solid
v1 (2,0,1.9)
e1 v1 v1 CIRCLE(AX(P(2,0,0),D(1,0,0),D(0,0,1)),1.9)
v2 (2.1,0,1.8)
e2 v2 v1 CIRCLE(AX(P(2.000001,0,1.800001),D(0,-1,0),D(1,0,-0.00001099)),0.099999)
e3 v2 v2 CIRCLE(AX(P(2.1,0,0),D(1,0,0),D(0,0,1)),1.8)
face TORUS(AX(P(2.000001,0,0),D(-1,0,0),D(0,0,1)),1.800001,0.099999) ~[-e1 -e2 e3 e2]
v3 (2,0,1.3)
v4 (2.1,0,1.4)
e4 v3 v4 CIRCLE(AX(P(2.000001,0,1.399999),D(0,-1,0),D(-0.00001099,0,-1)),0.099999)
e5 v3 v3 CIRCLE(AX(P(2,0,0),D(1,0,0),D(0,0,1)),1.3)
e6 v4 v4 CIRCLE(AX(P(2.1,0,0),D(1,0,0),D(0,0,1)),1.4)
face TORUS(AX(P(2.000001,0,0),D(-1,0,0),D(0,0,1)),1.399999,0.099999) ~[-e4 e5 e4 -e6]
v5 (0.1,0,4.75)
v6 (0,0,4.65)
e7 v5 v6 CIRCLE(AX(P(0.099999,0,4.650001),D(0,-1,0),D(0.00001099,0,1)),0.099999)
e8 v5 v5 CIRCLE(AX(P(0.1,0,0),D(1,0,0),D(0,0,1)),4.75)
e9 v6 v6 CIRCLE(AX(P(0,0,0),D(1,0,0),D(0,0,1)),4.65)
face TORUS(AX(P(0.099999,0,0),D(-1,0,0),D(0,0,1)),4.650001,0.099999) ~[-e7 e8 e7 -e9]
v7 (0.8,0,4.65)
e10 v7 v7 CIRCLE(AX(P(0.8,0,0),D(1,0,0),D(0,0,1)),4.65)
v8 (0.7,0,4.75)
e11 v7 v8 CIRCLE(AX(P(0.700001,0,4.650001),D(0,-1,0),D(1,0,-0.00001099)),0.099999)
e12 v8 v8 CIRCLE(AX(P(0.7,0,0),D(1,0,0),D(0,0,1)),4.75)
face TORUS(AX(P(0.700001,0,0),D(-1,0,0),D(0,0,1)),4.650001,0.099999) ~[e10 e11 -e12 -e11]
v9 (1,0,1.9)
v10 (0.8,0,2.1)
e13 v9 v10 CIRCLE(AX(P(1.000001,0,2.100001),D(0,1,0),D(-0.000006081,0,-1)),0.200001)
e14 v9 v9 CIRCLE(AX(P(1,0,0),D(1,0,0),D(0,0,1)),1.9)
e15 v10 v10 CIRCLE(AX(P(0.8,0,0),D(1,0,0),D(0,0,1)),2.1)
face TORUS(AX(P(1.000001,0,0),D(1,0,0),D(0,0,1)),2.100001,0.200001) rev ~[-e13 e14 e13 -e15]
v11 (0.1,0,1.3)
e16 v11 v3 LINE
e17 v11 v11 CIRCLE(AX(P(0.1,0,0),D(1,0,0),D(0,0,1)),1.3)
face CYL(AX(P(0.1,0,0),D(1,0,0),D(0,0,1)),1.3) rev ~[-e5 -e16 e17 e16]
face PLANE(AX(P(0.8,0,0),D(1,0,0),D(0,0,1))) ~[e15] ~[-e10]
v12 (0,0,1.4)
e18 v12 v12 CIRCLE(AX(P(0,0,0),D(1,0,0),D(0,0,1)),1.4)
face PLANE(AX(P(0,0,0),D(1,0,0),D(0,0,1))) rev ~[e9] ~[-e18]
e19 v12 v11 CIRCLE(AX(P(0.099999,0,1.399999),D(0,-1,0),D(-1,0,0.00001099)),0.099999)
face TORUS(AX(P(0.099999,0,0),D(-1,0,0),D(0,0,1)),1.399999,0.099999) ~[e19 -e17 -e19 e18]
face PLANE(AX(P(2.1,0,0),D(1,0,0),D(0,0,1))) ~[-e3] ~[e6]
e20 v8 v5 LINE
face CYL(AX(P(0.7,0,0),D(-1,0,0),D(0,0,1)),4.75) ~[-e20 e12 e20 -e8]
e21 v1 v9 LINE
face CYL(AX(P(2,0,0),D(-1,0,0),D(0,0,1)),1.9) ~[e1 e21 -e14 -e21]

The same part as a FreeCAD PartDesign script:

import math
import FreeCAD as App
import Part
import Sketcher
from FreeCAD import Vector
Q = App.Units.Quantity

doc = App.newDocument("Part")
body = doc.addObject("PartDesign::Body", "Body")

sketch1 = body.newObject("Sketcher::SketchObject", "Sketch")
sketch1.AttachmentSupport = (doc.getObject("XZ_Plane"), [""])
sketch1.MapMode = "FlatFace"
sketch1.addGeometry(Part.LineSegment(Vector(0.7, 4.75, 0), Vector(0.1, 4.75, 0)), False)
sketch1.addGeometry(Part.ArcOfCircle(Part.Circle(Vector(0.1, 4.65, 0), Vector(0, 0, 1), 0.1), math.radians(90), math.radians(180)), False)
sketch1.addGeometry(Part.LineSegment(Vector(0, 4.65, 0), Vector(0, 1.4, 0)), False)
sketch1.addGeometry(Part.ArcOfCircle(Part.Circle(Vector(0.1, 1.4, 0), Vector(0, 0, 1), 0.1), math.radians(180), math.radians(270)), False)
sketch1.addGeometry(Part.LineSegment(Vector(0.1, 1.3, 0), Vector(2, 1.3, 0)), False)
sketch1.addGeometry(Part.ArcOfCircle(Part.Circle(Vector(2, 1.4, 0), Vector(0, 0, 1), 0.1), math.radians(-90), math.radians(0)), False)
sketch1.addGeometry(Part.LineSegment(Vector(2.1, 1.4, 0), Vector(2.1, 1.8, 0)), False)
sketch1.addGeometry(Part.ArcOfCircle(Part.Circle(Vector(2, 1.8, 0), Vector(0, 0, 1), 0.1), math.radians(0), math.radians(90)), False)
sketch1.addGeometry(Part.LineSegment(Vector(2, 1.9, 0), Vector(1, 1.9, 0)), False)
sketch1.addGeometry(Part.ArcOfCircle(Part.Circle(Vector(1, 2.1, 0), Vector(0, 0, 1), 0.2), math.radians(-180), math.radians(-90)), False)
sketch1.addGeometry(Part.LineSegment(Vector(0.8, 2.1, 0), Vector(0.8, 4.65, 0)), False)
sketch1.addGeometry(Part.ArcOfCircle(Part.Circle(Vector(0.7, 4.65, 0), Vector(0, 0, 1), 0.1), math.radians(0), math.radians(90)), False)
sketch1.addConstraint(Sketcher.Constraint("Coincident", 0, 2, 1, 1))
sketch1.addConstraint(Sketcher.Constraint("Coincident", 1, 2, 2, 1))
sketch1.addConstraint(Sketcher.Constraint("Coincident", 2, 2, 3, 1))
sketch1.addConstraint(Sketcher.Constraint("Coincident", 3, 2, 4, 1))
sketch1.addConstraint(Sketcher.Constraint("Coincident", 4, 2, 5, 1))
sketch1.addConstraint(Sketcher.Constraint("Coincident", 5, 2, 6, 1))
sketch1.addConstraint(Sketcher.Constraint("Coincident", 6, 2, 7, 1))
sketch1.addConstraint(Sketcher.Constraint("Coincident", 7, 2, 8, 1))
sketch1.addConstraint(Sketcher.Constraint("Coincident", 8, 2, 9, 2))
sketch1.addConstraint(Sketcher.Constraint("Coincident", 9, 1, 10, 1))
sketch1.addConstraint(Sketcher.Constraint("Coincident", 10, 2, 11, 1))
sketch1.addConstraint(Sketcher.Constraint("Coincident", 11, 2, 0, 1))
sketch1.addConstraint(Sketcher.Constraint("Horizontal", 0))
sketch1.addConstraint(Sketcher.Constraint("Vertical", 2))
sketch1.addConstraint(Sketcher.Constraint("Horizontal", 4))
sketch1.addConstraint(Sketcher.Constraint("Vertical", 6))
sketch1.addConstraint(Sketcher.Constraint("Horizontal", 8))
sketch1.addConstraint(Sketcher.Constraint("Vertical", 10))
sketch1.addConstraint(Sketcher.Constraint("Equal", 1, 3))
sketch1.addConstraint(Sketcher.Constraint("Equal", 3, 5))
sketch1.addConstraint(Sketcher.Constraint("Equal", 5, 7))
sketch1.addConstraint(Sketcher.Constraint("Equal", 7, 11))
sketch1.addConstraint(Sketcher.Constraint("PointOnObject", 1, 2, -2))
sketch1.addConstraint(Sketcher.Constraint("Horizontal", 11, 3, 1, 2))
sketch1.addConstraint(Sketcher.Constraint("Horizontal", 5, 3, 2, 2))
sketch1.addConstraint(Sketcher.Constraint("Horizontal", 2, 2, 5, 2))
sketch1.addConstraint(Sketcher.Constraint("Horizontal", 7, 3, 6, 2))
sketch1.addConstraint(Sketcher.Constraint("Horizontal", 1, 2, 10, 2))
sketch1.addConstraint(Sketcher.Constraint("Vertical", 3, 3, 0, 2))
sketch1.addConstraint(Sketcher.Constraint("Vertical", 0, 2, 3, 2))
sketch1.addConstraint(Sketcher.Constraint("Vertical", 7, 3, 4, 2))
sketch1.addConstraint(Sketcher.Constraint("Vertical", 4, 2, 7, 2))
sketch1.addConstraint(Sketcher.Constraint("Vertical", 9, 3, 8, 2))
sketch1.addConstraint(Sketcher.Constraint("Radius", 1, Q("0.099999 mm")))
sketch1.addConstraint(Sketcher.Constraint("Radius", 9, Q("0.200001 mm")))
sketch1.addConstraint(Sketcher.Constraint("DistanceX", 8, 2, 8, 1, Q("1 mm")))
sketch1.addConstraint(Sketcher.Constraint("DistanceX", 0, 2, 0, 1, Q("0.6 mm")))
sketch1.addConstraint(Sketcher.Constraint("DistanceX", 4, 1, 4, 2, Q("1.9 mm")))
sketch1.addConstraint(Sketcher.Constraint("DistanceY", 6, 1, 6, 2, Q("0.4 mm")))
sketch1.addConstraint(Sketcher.Constraint("DistanceY", 2, 2, 2, 1, Q("3.25 mm")))
sketch1.addConstraint(Sketcher.Constraint("DistanceY", 10, 1, 10, 2, Q("2.55 mm")))
sketch1.addConstraint(Sketcher.Constraint("DistanceY", -1, 1, 3, 3, Q("1.399999 mm")))
revolution = body.newObject("PartDesign::Revolution", "Revolution")
revolution.Profile = sketch1
revolution.ReferenceAxis = (sketch1, ["H_Axis"])
revolution.Angle = 360

doc.recompute()
